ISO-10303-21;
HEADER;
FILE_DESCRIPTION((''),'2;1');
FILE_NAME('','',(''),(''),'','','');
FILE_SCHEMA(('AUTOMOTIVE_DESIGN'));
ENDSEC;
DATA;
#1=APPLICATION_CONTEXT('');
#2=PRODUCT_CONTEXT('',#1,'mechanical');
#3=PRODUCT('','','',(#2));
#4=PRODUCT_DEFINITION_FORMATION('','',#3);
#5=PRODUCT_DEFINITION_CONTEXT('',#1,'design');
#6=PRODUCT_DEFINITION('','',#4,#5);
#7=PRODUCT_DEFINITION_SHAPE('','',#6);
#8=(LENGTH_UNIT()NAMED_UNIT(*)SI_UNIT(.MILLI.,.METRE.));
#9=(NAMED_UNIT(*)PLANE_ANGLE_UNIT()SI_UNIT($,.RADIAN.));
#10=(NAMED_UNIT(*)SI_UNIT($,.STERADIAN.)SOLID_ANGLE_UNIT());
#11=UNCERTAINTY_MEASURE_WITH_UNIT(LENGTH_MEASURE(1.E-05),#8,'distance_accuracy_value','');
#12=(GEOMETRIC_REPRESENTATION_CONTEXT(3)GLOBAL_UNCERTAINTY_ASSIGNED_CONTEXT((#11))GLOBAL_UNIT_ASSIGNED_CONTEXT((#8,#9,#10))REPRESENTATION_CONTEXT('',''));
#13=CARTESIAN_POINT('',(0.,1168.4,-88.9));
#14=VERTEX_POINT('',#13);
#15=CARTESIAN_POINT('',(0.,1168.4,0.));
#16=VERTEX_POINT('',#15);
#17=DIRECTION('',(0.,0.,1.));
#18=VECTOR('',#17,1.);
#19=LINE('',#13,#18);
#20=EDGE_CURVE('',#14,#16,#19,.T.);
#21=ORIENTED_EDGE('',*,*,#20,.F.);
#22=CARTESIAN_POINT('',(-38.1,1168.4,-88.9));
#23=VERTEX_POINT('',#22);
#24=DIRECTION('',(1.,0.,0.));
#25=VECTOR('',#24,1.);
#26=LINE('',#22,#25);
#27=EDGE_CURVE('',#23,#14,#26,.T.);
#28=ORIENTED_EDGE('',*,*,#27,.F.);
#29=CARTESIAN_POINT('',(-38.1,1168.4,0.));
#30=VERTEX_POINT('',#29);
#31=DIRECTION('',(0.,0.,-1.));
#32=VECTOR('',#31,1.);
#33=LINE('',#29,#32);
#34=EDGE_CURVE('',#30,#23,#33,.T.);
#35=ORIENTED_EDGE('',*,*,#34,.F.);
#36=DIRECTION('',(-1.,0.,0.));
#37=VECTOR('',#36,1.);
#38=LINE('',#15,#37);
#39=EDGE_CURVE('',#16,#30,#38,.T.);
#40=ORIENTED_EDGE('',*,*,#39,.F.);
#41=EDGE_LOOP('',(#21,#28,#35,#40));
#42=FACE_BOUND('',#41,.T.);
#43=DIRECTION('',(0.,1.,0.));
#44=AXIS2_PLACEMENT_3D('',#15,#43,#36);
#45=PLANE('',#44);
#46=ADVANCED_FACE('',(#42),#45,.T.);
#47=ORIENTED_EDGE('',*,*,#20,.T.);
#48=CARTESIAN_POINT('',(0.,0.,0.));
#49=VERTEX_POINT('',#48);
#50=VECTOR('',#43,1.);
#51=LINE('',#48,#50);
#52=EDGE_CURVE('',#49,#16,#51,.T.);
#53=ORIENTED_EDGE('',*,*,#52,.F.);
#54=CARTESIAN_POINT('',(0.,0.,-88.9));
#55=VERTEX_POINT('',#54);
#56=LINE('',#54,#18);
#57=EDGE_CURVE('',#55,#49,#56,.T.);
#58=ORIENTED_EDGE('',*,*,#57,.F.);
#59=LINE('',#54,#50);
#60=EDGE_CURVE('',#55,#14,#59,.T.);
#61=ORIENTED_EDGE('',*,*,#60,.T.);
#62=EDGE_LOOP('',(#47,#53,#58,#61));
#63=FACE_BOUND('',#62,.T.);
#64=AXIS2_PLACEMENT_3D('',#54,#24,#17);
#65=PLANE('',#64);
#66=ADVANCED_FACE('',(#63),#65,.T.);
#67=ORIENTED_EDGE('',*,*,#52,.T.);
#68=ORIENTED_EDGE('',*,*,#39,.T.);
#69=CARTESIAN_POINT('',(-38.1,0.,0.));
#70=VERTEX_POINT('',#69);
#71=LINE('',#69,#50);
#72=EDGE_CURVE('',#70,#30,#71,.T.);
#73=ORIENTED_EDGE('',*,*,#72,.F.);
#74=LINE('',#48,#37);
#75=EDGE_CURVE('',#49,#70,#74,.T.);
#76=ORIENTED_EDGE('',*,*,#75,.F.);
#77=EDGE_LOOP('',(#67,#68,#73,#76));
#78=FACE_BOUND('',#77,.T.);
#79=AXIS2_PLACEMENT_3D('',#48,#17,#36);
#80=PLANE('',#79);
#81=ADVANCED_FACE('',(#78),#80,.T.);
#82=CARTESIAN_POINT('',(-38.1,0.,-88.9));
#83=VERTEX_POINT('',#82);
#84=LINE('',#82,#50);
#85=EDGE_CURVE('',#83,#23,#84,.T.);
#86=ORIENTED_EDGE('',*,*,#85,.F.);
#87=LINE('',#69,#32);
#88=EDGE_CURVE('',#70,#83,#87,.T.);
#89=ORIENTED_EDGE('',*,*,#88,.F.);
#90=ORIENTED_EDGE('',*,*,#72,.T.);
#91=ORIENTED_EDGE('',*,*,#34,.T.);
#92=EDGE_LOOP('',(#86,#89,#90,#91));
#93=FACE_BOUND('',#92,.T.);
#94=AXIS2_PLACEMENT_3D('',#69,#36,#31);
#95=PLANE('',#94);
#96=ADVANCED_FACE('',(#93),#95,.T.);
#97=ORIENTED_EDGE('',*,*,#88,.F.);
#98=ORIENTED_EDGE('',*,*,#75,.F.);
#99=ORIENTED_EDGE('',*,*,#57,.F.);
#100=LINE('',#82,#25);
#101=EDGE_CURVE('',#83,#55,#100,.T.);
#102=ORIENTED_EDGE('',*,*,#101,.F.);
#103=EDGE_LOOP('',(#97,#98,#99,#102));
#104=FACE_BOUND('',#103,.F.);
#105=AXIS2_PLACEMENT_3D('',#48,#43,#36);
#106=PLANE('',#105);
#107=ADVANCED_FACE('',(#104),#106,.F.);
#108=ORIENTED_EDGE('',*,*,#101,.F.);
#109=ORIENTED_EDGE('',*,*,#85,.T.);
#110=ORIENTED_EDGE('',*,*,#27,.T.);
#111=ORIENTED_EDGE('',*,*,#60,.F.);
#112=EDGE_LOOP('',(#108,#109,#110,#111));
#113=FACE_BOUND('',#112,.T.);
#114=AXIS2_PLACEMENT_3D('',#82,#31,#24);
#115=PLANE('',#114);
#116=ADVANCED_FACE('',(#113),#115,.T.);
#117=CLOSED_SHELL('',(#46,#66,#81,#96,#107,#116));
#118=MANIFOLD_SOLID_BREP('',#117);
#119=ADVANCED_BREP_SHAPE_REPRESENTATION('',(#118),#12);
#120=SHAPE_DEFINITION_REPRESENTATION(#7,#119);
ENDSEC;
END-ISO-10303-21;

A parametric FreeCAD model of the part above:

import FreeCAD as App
import Part
import Sketcher
from FreeCAD import Vector
Q = App.Units.Quantity

doc = App.newDocument("Part")
body = doc.addObject("PartDesign::Body", "Body")

# Sketch on XZ plane
sketch1 = body.newObject("Sketcher::SketchObject", "Sketch")
sketch1.AttachmentSupport = (doc.getObject("XZ_Plane"), [""])
sketch1.MapMode = "FlatFace"
sketch1.addGeometry(Part.LineSegment(Vector(-38, 0, 0), Vector(0, 0, 0)), False)
sketch1.addGeometry(Part.LineSegment(Vector(0, 0, 0), Vector(0, -89, 0)), False)
sketch1.addGeometry(Part.LineSegment(Vector(0, -89, 0), Vector(-38, -89, 0)), False)
sketch1.addGeometry(Part.LineSegment(Vector(-38, -89, 0), Vector(-38, 0, 0)), False)
sketch1.addConstraint(Sketcher.Constraint("Coincident", 0, 2, 1, 1))
sketch1.addConstraint(Sketcher.Constraint("Coincident", 1, 2, 2, 1))
sketch1.addConstraint(Sketcher.Constraint("Coincident", 2, 2, 3, 1))
sketch1.addConstraint(Sketcher.Constraint("Coincident", 3, 2, 0, 1))
sketch1.addConstraint(Sketcher.Constraint("Horizontal", 0))
sketch1.addConstraint(Sketcher.Constraint("Vertical", 1))
sketch1.addConstraint(Sketcher.Constraint("Horizontal", 2))
sketch1.addConstraint(Sketcher.Constraint("Vertical", 3))
sketch1.addConstraint(Sketcher.Constraint("Coincident", 0, 2, -1, 1))
sketch1.addConstraint(Sketcher.Constraint("DistanceX", 0, 1, 0, 2, Q("1.5 in")))
sketch1.addConstraint(Sketcher.Constraint("DistanceY", 1, 2, 1, 1, Q("3.5 in")))
pad1 = body.newObject("PartDesign::Pad", "Pad")
pad1.Profile = sketch1
pad1.Length = Q("46 in")
pad1.Reversed = True

doc.recompute()
